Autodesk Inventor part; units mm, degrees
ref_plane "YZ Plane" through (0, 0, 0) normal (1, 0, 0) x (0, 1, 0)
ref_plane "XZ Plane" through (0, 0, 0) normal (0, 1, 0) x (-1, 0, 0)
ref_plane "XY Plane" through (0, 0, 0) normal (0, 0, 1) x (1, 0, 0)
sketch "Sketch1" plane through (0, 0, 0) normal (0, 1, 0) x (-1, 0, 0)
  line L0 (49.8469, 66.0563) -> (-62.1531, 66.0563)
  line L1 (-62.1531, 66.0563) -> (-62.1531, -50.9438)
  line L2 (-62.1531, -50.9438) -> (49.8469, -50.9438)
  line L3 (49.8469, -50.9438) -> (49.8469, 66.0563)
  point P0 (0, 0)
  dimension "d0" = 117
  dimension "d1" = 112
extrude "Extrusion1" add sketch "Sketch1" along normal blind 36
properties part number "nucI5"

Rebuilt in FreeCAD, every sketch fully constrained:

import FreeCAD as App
import Part
import Sketcher
Q = App.Units.Quantity

doc = App.newDocument("Part")
body = doc.addObject("PartDesign::Body", "Body")

# Sketch on XZ plane
sketch1 = body.newObject("Sketcher::SketchObject", "Sketch")
sketch1.AttachmentSupport = (doc.getObject("XZ_Plane"), [""])
sketch1.MapMode = "FlatFace"
sketch1.addGeometry([
    Part.LineSegment(App.Vector(-50, -51, 0), App.Vector(-50, 66, 0)),
    Part.LineSegment(App.Vector(-50, 66, 0), App.Vector(62, 66, 0)),
    Part.LineSegment(App.Vector(62, 66, 0), App.Vector(62, -51, 0)),
    Part.LineSegment(App.Vector(62, -51, 0), App.Vector(-50, -51, 0)),
], False)
sketch1.addConstraint([
    Sketcher.Constraint("Coincident", 0, 2, 1, 1),
    Sketcher.Constraint("Coincident", 1, 2, 2, 1),
    Sketcher.Constraint("Coincident", 2, 2, 3, 1),
    Sketcher.Constraint("Coincident", 3, 2, 0, 1),
    Sketcher.Constraint("Vertical", 0),
    Sketcher.Constraint("Horizontal", 1),
    Sketcher.Constraint("Vertical", 2),
    Sketcher.Constraint("Horizontal", 3),
    Sketcher.Constraint("DistanceX", 1, 1, 1, 2, Q("112 mm")),
    Sketcher.Constraint("DistanceY", 0, 1, 0, 2, Q("117 mm")),
    Sketcher.Constraint("DistanceX", 0, 2, -1, 1, Q("49.847 mm")),
    Sketcher.Constraint("DistanceY", -1, 1, 0, 2, Q("66.0563 mm")),
])
pad1 = body.newObject("PartDesign::Pad", "Pad")
pad1.Profile = sketch1
pad1.Length = 36
pad1.Reversed = True

doc.recompute()
